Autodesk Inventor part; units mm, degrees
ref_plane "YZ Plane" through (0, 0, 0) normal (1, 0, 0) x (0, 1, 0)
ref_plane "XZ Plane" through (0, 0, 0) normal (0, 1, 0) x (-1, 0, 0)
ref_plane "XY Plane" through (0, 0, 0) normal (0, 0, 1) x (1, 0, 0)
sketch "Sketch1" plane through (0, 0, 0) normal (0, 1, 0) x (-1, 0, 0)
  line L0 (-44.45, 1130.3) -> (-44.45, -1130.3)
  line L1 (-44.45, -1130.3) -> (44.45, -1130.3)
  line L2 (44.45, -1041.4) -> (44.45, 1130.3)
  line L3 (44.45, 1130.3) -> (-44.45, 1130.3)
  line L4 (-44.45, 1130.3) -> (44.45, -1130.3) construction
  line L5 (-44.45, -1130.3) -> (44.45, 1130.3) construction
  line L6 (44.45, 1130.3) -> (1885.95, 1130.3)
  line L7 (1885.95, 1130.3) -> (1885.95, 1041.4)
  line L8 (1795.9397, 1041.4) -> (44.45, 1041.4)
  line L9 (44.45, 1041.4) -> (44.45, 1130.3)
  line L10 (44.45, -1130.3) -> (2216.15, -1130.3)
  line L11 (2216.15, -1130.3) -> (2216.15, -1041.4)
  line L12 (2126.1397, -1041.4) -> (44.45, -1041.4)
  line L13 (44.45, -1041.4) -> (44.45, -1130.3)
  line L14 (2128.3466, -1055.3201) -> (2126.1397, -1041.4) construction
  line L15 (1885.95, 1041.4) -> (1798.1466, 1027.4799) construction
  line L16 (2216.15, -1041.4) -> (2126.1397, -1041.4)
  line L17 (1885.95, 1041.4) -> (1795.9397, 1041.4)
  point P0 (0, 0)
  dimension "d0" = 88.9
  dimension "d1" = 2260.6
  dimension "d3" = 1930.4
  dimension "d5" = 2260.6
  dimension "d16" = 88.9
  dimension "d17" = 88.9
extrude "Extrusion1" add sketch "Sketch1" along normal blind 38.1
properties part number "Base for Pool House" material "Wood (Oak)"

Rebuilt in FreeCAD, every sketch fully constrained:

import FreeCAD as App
import Part
import Sketcher
from FreeCAD import Vector
Q = App.Units.Quantity


def add_polygon(sketch, points):
    """Adds a closed chain of lines whose ends are joined by coincident constraints."""
    first, n = sketch.GeometryCount, len(points)
    for a, b in zip(points, points[1:] + points[:1]):
        sketch.addGeometry(Part.LineSegment(App.Vector(*a, 0), App.Vector(*b, 0)), False)
    for i in range(n):
        sketch.addConstraint(Sketcher.Constraint("Coincident", first + i, 2, first + (i + 1) % n, 1))

doc = App.newDocument("Part")
body = doc.addObject("PartDesign::Body", "Body")

# Sketch on XZ plane
sketch1 = doc.addObject("Sketcher::SketchObject", "Sketch")
body.addObject(sketch1)
sketch1.AttachmentSupport = (doc.XZ_Plane, [""])
sketch1.MapMode = "FlatFace"
add_polygon(sketch1, [(44, 1130), (44, -1130), (-2216, -1130), (-2216, -1041), (-44, -1041), (-44, 1041), (-1886, 1041), (-1886, 1130)])  # lines 0-7
sketch1.addConstraint(Sketcher.Constraint("Vertical", 0))
sketch1.addConstraint(Sketcher.Constraint("Horizontal", 1))
sketch1.addConstraint(Sketcher.Constraint("Vertical", 2))
sketch1.addConstraint(Sketcher.Constraint("Horizontal", 3))
sketch1.addConstraint(Sketcher.Constraint("Vertical", 4))
sketch1.addConstraint(Sketcher.Constraint("Horizontal", 5))
sketch1.addConstraint(Sketcher.Constraint("Vertical", 6))
sketch1.addConstraint(Sketcher.Constraint("Horizontal", 7))
sketch1.addConstraint(Sketcher.Constraint("Equal", 1, 0))
sketch1.addConstraint(Sketcher.Constraint("Equal", 2, 6))
sketch1.addConstraint(Sketcher.Constraint("DistanceX", 1, 2, 1, 1, Q("89 in")))
sketch1.addConstraint(Sketcher.Constraint("DistanceX", 7, 1, 7, 2, Q("76 in")))
sketch1.addConstraint(Sketcher.Constraint("DistanceY", 2, 1, 2, 2, Q("3.5 in")))
sketch1.addConstraint(Sketcher.Constraint("DistanceX", 3, 2, 0, 2, Q("3.5 in")))
sketch1.addConstraint(Sketcher.Constraint("DistanceY", 2, 2, -1, 1, Q("41 in")))
sketch1.addConstraint(Sketcher.Constraint("DistanceX", -1, 1, 0, 2, Q("1.75 in")))
pad1 = doc.addObject("PartDesign::Pad", "Pad")
body.addObject(pad1)
pad1.Profile = sketch1
pad1.Length = Q("1.5 in")
pad1.Reversed = True

doc.recompute()
